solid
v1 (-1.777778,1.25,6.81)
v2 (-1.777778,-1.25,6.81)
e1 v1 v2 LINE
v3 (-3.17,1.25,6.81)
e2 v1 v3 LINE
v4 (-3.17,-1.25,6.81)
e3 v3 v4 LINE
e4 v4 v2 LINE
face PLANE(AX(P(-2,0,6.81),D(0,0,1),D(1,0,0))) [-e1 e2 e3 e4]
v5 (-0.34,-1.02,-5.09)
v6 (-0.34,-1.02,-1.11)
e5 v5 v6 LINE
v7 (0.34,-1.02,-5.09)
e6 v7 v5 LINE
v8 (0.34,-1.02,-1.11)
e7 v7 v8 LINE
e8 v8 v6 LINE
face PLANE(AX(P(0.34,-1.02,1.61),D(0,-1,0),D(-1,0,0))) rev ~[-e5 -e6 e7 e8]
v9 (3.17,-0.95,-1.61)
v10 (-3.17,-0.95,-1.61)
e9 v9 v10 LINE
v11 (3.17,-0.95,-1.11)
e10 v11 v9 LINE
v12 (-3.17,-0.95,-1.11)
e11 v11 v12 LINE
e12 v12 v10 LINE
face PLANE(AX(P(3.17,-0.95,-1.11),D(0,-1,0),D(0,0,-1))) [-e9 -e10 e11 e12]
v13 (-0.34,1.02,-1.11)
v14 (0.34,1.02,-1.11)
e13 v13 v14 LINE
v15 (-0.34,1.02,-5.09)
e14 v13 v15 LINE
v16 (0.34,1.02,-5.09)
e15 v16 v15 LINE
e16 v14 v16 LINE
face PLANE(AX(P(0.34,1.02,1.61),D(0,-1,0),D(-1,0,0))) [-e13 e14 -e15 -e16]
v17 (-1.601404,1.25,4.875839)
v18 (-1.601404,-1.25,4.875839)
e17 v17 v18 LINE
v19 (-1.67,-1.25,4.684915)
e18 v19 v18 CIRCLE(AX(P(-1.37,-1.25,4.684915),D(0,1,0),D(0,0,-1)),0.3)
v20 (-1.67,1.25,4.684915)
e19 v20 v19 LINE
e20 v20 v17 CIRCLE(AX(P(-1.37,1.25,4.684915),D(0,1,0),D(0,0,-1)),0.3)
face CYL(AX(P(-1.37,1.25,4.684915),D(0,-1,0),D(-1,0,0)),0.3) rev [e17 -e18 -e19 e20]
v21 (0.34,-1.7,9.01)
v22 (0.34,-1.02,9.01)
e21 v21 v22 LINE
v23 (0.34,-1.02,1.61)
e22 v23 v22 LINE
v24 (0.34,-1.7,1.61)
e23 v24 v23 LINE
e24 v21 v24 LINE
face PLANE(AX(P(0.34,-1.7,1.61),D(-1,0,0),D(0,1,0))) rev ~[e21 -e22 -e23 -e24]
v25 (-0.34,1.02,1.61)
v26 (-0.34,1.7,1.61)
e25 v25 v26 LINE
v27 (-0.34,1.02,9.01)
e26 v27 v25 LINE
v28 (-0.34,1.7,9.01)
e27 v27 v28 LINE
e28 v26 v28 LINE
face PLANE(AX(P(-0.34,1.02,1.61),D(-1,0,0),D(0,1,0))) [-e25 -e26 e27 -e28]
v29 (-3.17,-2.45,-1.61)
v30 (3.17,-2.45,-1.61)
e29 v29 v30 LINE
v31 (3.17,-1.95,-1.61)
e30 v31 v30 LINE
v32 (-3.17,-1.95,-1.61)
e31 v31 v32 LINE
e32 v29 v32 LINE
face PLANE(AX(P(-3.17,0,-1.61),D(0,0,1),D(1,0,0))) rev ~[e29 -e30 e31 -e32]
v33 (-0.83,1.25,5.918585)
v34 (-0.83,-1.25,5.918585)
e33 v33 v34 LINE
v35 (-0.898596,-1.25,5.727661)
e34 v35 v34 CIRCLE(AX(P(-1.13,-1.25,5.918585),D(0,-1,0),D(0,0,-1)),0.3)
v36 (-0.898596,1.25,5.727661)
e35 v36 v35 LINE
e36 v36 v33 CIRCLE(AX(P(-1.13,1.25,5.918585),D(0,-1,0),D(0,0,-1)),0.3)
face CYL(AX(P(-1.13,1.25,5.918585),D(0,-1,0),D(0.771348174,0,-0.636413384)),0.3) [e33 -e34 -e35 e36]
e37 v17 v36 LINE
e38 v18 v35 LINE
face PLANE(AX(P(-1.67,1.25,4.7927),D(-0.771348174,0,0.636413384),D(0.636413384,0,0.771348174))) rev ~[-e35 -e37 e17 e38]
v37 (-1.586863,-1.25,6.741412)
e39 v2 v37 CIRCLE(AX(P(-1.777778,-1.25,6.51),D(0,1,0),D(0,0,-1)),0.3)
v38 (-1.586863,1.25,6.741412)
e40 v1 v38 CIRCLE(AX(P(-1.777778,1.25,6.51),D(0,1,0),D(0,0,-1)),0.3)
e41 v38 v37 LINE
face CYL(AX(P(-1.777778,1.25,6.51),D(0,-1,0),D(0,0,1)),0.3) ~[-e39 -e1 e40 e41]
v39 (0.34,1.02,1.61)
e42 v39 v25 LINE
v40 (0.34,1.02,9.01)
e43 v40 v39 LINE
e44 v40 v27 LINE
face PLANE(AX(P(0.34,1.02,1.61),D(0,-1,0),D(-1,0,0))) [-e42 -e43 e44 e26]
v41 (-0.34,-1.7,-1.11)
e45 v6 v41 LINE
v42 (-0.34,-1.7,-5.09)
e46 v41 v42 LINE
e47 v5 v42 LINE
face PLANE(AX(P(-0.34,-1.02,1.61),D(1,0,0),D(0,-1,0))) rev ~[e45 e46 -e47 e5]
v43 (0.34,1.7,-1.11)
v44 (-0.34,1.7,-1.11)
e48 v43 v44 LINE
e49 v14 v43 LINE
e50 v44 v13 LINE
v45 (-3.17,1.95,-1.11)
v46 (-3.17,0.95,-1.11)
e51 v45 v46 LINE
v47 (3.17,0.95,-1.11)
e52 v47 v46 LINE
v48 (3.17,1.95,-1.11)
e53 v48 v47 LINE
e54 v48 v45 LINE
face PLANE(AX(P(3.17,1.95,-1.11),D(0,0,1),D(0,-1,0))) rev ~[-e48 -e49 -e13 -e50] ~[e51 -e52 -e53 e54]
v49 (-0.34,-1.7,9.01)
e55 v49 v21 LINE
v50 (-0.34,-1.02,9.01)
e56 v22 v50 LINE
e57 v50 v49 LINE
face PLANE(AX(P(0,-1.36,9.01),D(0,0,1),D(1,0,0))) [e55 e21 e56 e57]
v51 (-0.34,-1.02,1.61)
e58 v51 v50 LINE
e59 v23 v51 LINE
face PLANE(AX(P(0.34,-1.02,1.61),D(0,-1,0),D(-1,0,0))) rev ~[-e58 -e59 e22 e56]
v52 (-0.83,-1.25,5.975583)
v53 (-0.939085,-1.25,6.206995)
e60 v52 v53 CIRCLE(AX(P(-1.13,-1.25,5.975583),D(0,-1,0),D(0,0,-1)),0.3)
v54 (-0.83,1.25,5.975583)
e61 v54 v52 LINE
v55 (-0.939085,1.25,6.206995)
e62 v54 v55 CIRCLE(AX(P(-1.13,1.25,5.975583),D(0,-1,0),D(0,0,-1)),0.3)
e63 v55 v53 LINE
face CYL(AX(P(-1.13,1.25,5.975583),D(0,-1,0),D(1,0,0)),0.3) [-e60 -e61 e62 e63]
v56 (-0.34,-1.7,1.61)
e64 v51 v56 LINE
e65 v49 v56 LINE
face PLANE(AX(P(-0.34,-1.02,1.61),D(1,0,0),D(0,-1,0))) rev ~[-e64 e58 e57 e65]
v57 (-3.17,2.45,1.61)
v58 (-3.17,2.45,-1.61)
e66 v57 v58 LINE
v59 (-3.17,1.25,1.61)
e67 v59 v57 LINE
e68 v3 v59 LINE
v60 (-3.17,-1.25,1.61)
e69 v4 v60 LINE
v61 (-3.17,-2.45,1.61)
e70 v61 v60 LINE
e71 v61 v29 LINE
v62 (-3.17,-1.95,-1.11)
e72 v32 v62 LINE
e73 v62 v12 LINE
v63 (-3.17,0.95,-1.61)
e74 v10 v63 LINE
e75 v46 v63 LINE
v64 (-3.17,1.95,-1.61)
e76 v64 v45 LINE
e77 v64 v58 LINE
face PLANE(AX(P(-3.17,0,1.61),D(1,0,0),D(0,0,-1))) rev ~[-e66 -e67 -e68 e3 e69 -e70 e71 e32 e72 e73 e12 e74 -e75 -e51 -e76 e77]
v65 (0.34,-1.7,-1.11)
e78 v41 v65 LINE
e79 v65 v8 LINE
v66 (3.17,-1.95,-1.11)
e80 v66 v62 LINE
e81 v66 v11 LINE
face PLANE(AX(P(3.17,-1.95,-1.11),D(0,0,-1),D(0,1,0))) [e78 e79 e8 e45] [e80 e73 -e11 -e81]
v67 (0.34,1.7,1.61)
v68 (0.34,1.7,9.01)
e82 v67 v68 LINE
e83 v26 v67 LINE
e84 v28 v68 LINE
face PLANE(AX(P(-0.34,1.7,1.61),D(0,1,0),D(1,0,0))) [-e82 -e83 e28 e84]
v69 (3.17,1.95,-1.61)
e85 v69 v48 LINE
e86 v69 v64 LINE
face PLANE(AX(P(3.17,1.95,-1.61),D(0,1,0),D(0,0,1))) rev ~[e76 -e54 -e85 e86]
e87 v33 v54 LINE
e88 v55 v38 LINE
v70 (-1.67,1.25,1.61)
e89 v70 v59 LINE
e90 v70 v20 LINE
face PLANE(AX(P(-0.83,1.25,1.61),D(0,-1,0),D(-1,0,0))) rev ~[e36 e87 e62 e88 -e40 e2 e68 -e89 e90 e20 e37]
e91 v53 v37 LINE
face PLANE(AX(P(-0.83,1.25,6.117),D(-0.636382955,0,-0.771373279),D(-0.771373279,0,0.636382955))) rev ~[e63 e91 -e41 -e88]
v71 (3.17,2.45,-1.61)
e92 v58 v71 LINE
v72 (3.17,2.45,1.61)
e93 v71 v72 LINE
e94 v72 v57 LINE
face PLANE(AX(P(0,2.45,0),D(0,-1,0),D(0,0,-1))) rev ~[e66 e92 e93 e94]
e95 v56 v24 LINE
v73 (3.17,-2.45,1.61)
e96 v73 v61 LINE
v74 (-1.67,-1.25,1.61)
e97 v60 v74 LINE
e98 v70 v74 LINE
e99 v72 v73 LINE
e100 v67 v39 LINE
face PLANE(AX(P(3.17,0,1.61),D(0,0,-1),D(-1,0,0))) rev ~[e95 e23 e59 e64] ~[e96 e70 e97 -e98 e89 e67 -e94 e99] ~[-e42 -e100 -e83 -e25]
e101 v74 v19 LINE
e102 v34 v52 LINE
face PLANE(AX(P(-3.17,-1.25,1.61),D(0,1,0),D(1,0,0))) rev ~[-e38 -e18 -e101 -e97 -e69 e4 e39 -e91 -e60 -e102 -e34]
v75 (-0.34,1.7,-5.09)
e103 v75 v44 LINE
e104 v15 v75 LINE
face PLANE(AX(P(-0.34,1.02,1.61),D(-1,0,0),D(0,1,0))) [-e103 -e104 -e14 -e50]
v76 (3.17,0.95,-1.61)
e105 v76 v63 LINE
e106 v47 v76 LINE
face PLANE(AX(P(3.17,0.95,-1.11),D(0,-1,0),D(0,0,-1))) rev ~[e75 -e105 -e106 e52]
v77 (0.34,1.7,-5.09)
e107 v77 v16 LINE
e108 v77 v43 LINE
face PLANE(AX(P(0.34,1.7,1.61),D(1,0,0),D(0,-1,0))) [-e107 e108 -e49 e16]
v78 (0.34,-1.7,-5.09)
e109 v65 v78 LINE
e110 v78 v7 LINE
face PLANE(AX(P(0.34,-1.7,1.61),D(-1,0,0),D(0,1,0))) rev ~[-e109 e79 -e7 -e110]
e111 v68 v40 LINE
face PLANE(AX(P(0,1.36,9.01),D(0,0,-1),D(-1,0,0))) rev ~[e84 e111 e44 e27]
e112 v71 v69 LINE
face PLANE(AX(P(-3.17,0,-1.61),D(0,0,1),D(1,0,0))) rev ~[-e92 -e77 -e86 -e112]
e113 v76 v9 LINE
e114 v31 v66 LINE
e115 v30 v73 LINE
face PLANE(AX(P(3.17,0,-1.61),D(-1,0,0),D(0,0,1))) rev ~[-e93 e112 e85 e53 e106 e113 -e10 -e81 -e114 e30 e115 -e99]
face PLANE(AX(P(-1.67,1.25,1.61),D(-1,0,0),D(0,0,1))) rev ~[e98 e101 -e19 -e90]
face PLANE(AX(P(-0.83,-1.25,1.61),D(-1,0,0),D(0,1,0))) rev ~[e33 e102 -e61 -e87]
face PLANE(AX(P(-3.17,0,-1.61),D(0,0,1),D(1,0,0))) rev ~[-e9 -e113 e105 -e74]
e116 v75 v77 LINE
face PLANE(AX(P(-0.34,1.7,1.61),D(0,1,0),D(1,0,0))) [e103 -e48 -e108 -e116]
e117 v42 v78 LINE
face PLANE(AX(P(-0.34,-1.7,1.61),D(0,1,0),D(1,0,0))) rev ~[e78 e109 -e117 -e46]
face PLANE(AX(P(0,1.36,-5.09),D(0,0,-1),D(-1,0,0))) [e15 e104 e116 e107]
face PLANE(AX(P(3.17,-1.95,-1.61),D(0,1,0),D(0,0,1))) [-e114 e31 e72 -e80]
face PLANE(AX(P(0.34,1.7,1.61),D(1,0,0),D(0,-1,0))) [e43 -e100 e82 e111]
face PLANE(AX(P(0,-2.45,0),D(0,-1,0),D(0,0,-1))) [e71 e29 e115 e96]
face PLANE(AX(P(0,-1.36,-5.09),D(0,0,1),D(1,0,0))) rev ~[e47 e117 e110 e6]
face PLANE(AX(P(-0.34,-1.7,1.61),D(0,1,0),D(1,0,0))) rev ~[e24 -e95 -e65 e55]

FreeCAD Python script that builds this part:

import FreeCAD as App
import Part
import Sketcher

V = App.Vector
Q = App.Units.Quantity


def edges_at(feature, points):
    """Names of the edges that pass closest to the given points."""
    edges = feature.Shape.Edges
    near = lambda p: min(range(len(edges)), key=lambda i: edges[i].distToShape(Part.Vertex(*p))[0])
    return sorted({f"Edge{near(p) + 1}" for p in points})


def add_polygon(sketch, points):
    """Adds a closed chain of lines whose ends are joined by coincident constraints."""
    first, n = sketch.GeometryCount, len(points)
    for a, b in zip(points, points[1:] + points[:1]):
        sketch.addGeometry(Part.LineSegment(App.Vector(*a, 0), App.Vector(*b, 0)), False)
    for i in range(n):
        sketch.addConstraint(Sketcher.Constraint("Coincident", first + i, 2, first + (i + 1) % n, 1))

doc = App.newDocument("Part")
body = doc.addObject("PartDesign::Body", "Body")

sketch1 = doc.addObject("Sketcher::SketchObject", "Sketch")
body.addObject(sketch1)
sketch1.AttachmentSupport = (doc.XZ_Plane, [""])
sketch1.MapMode = "FlatFace"
add_polygon(sketch1, [(-3.2, 1.6), (-3.2, -1.6), (3.2, -1.6), (3.2, 1.6)])
sketch1.addConstraint([
    Sketcher.Constraint("Vertical", 0),
    Sketcher.Constraint("Horizontal", 1),
    Sketcher.Constraint("Vertical", 2),
    Sketcher.Constraint("Horizontal", 3),
    Sketcher.Constraint("Symmetric", 0, 2, 2, 2, -1, 1),
    Sketcher.Constraint("DistanceX", 1, 1, 1, 2, Q("6.34 mm")),
    Sketcher.Constraint("DistanceY", 0, 2, 0, 1, Q("3.22 mm")),
])
pad1 = doc.addObject("PartDesign::Pad", "Pad")
body.addObject(pad1)
pad1.Profile = sketch1
pad1.Length = 4.9
pad1.Midplane = True

sketch2 = doc.addObject("Sketcher::SketchObject", "Sketch001")
body.addObject(sketch2)
sketch2.AttachmentSupport = (doc.XY_Plane, [""])
sketch2.MapMode = "FlatFace"
sketch2.AttachmentOffset = App.Placement(V(0, 0, 1.61), App.Rotation())
add_polygon(sketch2, [(-3.2, 1.2), (-3.2, -1.2), (-0.8, -1.2), (-0.8, 1.2)])
sketch2.addConstraint([
    Sketcher.Constraint("Vertical", 0),
    Sketcher.Constraint("Horizontal", 1),
    Sketcher.Constraint("Vertical", 2),
    Sketcher.Constraint("Horizontal", 3),
    Sketcher.Constraint("DistanceX", 1, 2, -1, 1, Q("0.83 mm")),
    Sketcher.Constraint("DistanceY", 0, 2, 0, 1, Q("2.5 mm")),
    Sketcher.Constraint("DistanceX", 1, 1, 1, 2, Q("2.34 mm")),
    Sketcher.Constraint("DistanceY", 0, 2, -1, 1, Q("1.25 mm")),
])
pad2 = doc.addObject("PartDesign::Pad", "Pad001")
body.addObject(pad2)
pad2.Profile = sketch2
pad2.Type = "TwoLengths"
pad2.Length = 5.2
pad2.Length2 = 1.7629

sketch3 = doc.addObject("Sketcher::SketchObject", "Sketch002")
body.addObject(sketch3)
sketch3.AttachmentSupport = (doc.YZ_Plane, [""])
sketch3.MapMode = "FlatFace"
sketch3.AttachmentOffset = App.Placement(V(0, 0, 3.17), App.Rotation())
add_polygon(sketch3, [(-0.9, -1.1), (-1.9, -1.1), (-1.9, -1.6), (-0.9, -1.6)])
add_polygon(sketch3, [(1.9, -1.6), (1.9, -1.1), (0.9, -1.1), (0.9, -1.6)])
sketch3.addConstraint([
    Sketcher.Constraint("Horizontal", 0),
    Sketcher.Constraint("Vertical", 1),
    Sketcher.Constraint("Horizontal", 2),
    Sketcher.Constraint("Vertical", 3),
    Sketcher.Constraint("Vertical", 4),
    Sketcher.Constraint("Horizontal", 5),
    Sketcher.Constraint("Vertical", 6),
    Sketcher.Constraint("Horizontal", 7),
    Sketcher.Constraint("Symmetric", 0, 2, 4, 2, -2),
    Sketcher.Constraint("Symmetric", 2, 2, 6, 2, -2),
    Sketcher.Constraint("DistanceX", 0, 2, 0, 1, Q("1 mm")),
    Sketcher.Constraint("DistanceX", 0, 2, -1, 1, Q("1.95 mm")),
    Sketcher.Constraint("DistanceY", 1, 2, 1, 1, Q("0.5 mm")),
    Sketcher.Constraint("DistanceY", 0, 2, -1, 1, Q("1.11 mm")),
])
pocket1 = doc.addObject("PartDesign::Pocket", "Pocket")
body.addObject(pocket1)
pocket1.Profile = sketch3
pocket1.Length = 6.34

sketch4 = doc.addObject("Sketcher::SketchObject", "Sketch003")
body.addObject(sketch4)
sketch4.AttachmentSupport = (doc.XY_Plane, [""])
sketch4.MapMode = "FlatFace"
sketch4.AttachmentOffset = App.Placement(V(0, 0, 1.61), App.Rotation())
add_polygon(sketch4, [(-0.3, -1.7), (0.3, -1.7), (0.3, -1), (-0.3, -1)])
add_polygon(sketch4, [(0.3, 1), (0.3, 1.7), (-0.3, 1.7), (-0.3, 1)])
sketch4.addConstraint([
    Sketcher.Constraint("Horizontal", 0),
    Sketcher.Constraint("Vertical", 1),
    Sketcher.Constraint("Horizontal", 2),
    Sketcher.Constraint("Vertical", 3),
    Sketcher.Constraint("Vertical", 4),
    Sketcher.Constraint("Horizontal", 5),
    Sketcher.Constraint("Vertical", 6),
    Sketcher.Constraint("Horizontal", 7),
    Sketcher.Constraint("Symmetric", 3, 2, 4, 2, -1, 1),
    Sketcher.Constraint("Symmetric", 1, 2, 6, 2, -1, 1),
    Sketcher.Constraint("Vertical", 1, 2, 4, 2),
    Sketcher.Constraint("Equal", 7, 1),
    Sketcher.Constraint("DistanceY", 0, 2, -1, 1, Q("1.7 mm")),
    Sketcher.Constraint("DistanceY", 1, 2, -1, 1, Q("1.02 mm")),
])
pad3 = doc.addObject("PartDesign::Pad", "Pad002")
body.addObject(pad3)
pad3.Profile = sketch4
pad3.Type = "TwoLengths"
pad3.Length = 7.4
pad3.Length2 = 6.7

sketch5 = doc.addObject("Sketcher::SketchObject", "Sketch004")
body.addObject(sketch5)
sketch5.AttachmentSupport = (doc.XZ_Plane, [""])
sketch5.MapMode = "FlatFace"
sketch5.AttachmentOffset = App.Placement(V(0, 0, -1.25), App.Rotation())
add_polygon(sketch5, [(-0.8, 6.1), (-1.7, 6.8), (-0.8, 6.8)])
add_polygon(sketch5, [(-1.7, 1.6), (-1.7, 4.8), (-0.8, 5.8), (-0.8, 1.6)])
sketch5.addConstraint([
    Sketcher.Constraint("Horizontal", 1),
    Sketcher.Constraint("Vertical", 2),
    Sketcher.Constraint("Vertical", 3),
    Sketcher.Constraint("Vertical", 5),
    Sketcher.Constraint("Horizontal", 6),
    Sketcher.Constraint("Perpendicular", 0, 4),
    Sketcher.Constraint("Vertical", 0, 2, 3, 2),
    Sketcher.Constraint("Vertical", 2, 2, 4, 2),
    Sketcher.Constraint("DistanceX", 1, 1, 1, 2, Q("0.84 mm")),
    Sketcher.Constraint("DistanceY", 5, 2, 1, 2, Q("5.2 mm")),
    Sketcher.Constraint("Distance", 4, Q("1.32 mm")),
    Sketcher.Constraint("DistanceX", 0, 2, -1, 1, Q("1.67 mm")),
    Sketcher.Constraint("DistanceY", -1, 1, 0, 2, Q("6.81 mm")),
    Sketcher.Constraint("DistanceY", 3, 1, 3, 2, Q("3.1827 mm")),
])
pocket2 = doc.addObject("PartDesign::Pocket", "Pocket001")
body.addObject(pocket2)
pocket2.Profile = sketch5
pocket2.Length = 2.5
pocket2.Reversed = True
doc.recompute()

fillet = doc.addObject("PartDesign::Fillet", "Fillet")
body.addObject(fillet)
fillet.Base = (pocket2, edges_at(pocket2, [
    (-0.83, 0, 6.117),
    (-1.67, 0, 6.81),
    (-0.83, 0, 5.811),
    (-1.67, 0, 4.793),
]))
fillet.Radius = 0.3

doc.recompute()
